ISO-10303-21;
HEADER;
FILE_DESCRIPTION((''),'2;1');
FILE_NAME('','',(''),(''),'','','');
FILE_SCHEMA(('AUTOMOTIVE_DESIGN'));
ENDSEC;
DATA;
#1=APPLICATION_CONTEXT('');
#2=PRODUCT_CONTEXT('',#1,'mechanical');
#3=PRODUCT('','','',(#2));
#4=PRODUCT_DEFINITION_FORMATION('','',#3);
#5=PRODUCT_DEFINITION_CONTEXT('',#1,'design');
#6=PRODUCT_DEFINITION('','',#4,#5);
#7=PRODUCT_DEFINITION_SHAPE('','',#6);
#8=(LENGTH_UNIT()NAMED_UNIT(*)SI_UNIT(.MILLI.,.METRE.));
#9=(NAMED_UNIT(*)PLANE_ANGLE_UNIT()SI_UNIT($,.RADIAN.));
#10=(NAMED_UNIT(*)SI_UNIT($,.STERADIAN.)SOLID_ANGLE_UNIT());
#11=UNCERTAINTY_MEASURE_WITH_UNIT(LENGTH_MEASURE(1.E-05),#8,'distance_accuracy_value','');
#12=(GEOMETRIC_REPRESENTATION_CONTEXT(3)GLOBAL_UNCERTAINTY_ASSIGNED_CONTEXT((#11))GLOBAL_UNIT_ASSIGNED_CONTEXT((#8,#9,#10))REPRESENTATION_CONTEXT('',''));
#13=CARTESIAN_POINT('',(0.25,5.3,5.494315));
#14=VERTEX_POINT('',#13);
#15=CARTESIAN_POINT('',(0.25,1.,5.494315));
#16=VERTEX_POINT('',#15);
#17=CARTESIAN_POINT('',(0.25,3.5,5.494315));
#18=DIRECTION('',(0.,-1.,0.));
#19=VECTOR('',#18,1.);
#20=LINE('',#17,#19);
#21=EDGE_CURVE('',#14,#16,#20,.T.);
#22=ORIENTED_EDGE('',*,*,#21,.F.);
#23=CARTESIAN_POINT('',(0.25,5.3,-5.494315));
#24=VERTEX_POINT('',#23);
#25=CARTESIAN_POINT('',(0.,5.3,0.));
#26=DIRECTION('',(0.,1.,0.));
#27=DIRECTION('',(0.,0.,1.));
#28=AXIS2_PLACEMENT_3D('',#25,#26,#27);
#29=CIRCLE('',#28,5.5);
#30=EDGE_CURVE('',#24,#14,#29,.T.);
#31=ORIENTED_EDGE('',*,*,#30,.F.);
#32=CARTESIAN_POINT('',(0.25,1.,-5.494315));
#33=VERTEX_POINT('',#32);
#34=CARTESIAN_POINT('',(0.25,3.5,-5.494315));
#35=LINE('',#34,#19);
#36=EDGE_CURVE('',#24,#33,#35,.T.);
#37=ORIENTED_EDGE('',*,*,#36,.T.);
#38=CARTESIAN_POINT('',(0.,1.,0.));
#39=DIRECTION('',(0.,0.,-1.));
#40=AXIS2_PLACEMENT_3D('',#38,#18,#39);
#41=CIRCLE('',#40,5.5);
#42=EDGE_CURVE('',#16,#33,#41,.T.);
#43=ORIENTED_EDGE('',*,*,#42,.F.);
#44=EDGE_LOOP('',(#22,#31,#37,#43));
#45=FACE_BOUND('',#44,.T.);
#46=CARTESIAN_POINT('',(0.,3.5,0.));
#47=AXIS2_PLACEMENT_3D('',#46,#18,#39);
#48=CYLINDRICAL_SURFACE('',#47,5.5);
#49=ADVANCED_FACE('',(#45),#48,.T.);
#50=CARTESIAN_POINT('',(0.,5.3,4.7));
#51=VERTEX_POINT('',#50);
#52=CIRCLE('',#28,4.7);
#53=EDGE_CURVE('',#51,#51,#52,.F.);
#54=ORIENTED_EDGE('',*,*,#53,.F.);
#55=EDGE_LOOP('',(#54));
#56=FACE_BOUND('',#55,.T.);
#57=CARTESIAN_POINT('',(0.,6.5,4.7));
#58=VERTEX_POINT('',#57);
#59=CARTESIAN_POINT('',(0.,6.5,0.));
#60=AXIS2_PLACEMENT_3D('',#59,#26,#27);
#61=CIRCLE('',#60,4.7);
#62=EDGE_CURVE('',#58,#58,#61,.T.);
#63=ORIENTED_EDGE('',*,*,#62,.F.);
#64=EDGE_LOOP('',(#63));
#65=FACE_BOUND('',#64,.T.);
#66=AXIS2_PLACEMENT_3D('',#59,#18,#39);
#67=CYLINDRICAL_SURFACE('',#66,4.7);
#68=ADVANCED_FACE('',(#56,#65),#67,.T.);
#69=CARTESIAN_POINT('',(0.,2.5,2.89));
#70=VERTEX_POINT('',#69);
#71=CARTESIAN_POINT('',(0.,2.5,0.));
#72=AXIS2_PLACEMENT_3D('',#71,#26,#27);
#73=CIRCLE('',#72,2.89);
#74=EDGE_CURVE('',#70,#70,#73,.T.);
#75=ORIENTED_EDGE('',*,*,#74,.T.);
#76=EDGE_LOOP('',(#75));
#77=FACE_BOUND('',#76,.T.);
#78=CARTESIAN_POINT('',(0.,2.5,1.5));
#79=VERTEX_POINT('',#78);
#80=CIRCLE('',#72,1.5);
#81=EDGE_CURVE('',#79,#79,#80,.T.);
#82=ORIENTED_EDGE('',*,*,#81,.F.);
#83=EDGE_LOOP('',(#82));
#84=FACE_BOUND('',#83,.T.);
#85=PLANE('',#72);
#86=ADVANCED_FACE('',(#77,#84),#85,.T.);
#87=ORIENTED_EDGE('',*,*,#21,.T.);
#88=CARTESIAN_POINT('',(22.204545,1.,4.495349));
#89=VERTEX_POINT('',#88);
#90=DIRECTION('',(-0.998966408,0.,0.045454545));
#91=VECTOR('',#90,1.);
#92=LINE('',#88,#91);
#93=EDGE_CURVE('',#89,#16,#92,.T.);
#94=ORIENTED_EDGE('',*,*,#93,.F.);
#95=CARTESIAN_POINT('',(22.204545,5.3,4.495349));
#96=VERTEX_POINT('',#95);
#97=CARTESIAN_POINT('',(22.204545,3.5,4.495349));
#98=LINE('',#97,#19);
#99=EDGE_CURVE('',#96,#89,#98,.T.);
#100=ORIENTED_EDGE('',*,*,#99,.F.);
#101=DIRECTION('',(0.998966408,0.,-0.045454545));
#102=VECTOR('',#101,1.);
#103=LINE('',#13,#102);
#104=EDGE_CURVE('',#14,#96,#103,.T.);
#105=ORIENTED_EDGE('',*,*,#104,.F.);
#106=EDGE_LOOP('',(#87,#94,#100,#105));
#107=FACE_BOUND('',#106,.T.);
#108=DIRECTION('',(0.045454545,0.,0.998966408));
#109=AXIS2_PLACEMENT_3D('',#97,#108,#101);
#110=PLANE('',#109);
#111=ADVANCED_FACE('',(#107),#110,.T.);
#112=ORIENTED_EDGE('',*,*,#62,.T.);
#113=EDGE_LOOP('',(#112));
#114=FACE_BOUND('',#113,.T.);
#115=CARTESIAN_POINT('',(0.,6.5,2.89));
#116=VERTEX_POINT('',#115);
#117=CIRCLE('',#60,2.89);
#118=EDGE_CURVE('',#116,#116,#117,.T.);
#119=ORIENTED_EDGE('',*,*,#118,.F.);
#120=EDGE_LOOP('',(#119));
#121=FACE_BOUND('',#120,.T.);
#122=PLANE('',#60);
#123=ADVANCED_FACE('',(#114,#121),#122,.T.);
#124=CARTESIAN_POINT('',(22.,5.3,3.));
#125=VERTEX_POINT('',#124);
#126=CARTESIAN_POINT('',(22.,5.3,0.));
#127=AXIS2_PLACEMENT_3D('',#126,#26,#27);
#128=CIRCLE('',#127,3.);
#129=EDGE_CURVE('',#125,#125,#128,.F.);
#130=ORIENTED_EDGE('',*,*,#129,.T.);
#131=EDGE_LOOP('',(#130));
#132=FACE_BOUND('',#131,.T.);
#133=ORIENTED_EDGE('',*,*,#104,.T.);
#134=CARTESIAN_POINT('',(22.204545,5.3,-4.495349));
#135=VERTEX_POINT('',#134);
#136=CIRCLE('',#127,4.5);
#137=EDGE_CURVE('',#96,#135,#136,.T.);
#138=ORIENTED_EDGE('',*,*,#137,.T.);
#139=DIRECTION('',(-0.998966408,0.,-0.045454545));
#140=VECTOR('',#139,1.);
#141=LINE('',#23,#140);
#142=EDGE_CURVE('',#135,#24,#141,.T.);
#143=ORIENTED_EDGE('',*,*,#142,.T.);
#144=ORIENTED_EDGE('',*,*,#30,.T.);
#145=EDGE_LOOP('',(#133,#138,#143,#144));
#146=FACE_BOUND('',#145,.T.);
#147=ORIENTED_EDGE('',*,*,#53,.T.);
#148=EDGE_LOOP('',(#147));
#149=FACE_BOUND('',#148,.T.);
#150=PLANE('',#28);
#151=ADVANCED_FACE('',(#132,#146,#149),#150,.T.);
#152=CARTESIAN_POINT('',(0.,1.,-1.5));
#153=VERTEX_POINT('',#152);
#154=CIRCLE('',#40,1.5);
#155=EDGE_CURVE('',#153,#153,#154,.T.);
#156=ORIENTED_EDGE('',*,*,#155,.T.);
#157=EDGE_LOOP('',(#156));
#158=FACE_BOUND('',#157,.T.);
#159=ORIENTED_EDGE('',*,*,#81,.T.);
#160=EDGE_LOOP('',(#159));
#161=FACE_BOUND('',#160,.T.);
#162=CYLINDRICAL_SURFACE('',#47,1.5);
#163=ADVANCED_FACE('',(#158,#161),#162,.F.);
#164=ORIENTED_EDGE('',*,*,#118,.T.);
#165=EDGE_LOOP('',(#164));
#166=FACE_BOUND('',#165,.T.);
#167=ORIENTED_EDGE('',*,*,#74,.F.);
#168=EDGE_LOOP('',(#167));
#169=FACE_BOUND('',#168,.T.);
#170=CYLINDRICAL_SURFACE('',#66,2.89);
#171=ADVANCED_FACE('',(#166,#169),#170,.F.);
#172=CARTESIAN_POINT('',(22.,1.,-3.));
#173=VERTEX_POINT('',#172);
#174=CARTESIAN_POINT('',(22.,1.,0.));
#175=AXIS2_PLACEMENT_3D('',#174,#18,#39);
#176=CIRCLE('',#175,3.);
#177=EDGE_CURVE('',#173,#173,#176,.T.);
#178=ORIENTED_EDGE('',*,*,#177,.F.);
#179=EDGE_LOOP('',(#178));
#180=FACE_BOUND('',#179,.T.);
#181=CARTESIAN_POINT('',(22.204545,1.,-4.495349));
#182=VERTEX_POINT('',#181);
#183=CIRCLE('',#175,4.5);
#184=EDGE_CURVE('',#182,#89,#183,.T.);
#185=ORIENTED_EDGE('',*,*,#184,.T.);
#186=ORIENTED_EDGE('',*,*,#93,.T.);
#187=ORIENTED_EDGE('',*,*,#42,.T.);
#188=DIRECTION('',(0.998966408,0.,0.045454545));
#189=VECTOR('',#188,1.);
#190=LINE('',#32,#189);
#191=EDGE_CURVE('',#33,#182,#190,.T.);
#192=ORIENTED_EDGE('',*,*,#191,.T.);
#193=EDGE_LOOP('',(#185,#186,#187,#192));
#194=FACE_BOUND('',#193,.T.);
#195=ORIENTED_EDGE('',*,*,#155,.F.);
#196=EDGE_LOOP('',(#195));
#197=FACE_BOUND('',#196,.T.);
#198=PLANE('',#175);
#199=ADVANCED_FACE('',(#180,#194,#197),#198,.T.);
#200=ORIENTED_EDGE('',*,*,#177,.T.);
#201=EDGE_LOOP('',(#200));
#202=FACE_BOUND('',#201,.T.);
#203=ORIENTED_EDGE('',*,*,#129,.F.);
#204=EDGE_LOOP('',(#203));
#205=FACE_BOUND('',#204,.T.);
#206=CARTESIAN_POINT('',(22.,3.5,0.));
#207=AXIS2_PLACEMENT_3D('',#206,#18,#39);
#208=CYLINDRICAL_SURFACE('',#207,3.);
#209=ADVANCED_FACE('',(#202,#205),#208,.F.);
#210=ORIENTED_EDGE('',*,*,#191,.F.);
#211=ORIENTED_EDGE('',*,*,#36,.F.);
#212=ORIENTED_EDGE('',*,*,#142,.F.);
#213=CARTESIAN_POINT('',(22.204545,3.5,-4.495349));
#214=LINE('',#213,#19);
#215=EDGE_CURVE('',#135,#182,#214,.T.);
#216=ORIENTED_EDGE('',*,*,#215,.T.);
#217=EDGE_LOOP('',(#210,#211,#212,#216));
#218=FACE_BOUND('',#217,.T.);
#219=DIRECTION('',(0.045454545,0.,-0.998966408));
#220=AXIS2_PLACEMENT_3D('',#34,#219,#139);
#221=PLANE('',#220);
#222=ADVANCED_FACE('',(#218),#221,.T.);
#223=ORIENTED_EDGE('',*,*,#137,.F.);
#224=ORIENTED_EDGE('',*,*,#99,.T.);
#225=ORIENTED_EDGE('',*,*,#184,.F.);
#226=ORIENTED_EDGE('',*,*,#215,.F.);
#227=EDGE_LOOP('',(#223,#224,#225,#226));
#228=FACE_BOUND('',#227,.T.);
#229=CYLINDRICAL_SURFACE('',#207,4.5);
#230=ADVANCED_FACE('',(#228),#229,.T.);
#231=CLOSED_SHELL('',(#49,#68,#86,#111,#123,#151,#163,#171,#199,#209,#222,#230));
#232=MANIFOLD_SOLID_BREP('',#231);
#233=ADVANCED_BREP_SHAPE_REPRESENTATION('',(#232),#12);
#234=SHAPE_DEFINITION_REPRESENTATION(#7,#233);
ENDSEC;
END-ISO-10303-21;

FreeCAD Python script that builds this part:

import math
import FreeCAD as App
import Part
import Sketcher
from FreeCAD import Vector

doc = App.newDocument("Part")
params = doc.addObject("Spreadsheet::Sheet", "Params")
for row, (alias, value) in enumerate([
    ("sketch1_diameter", "6 mm"),
    ("sketch1_diameter2", "3 mm"),
    ("sketch1_radius", "5.5 mm"),
    ("sketch1_radius2", "4.5 mm"),
    ("pad1_length", "3.5 mm"),
    ("sketch2_diameter", "9.4 mm"),
    ("sketch2_diameter2", "5.78 mm"),
    ("pad2_length", "3 mm"),
    ("sketch3_diameter", "5.78 mm"),
    ("pocket1_length", "1 mm"),
    ("sketch4_diameter", "6 mm"),
    ("sketch4_diameter2", "9.4 mm"),
    ("sketch4_radius", "4.5 mm"),
    ("sketch4_radius2", "5.5 mm"),
    ("pad3_length", "1.8 mm"),
    ("sketch5_radius", "5.5 mm"),
    ("sketch5_radius2", "4.5 mm"),
    ("pocket2_length", "1 mm"),
], start=1):
    params.set(f"A{row}", alias)
    params.set(f"B{row}", "=" + value)
    params.setAlias(f"B{row}", alias)

body = doc.addObject("PartDesign::Body", "Body")

sketch1 = body.newObject("Sketcher::SketchObject", "Sketch")
sketch1.AttachmentSupport = (doc.getObject("XZ_Plane"), [""])
sketch1.MapMode = "FlatFace"
sketch1.addGeometry(Part.LineSegment(Vector(22.2, -4.5, 0), Vector(0.2, -5.5, 0)), False)
sketch1.addGeometry(Part.ArcOfCircle(Part.Circle(Vector(0, 0, 0), Vector(0, 0, 1), 5.5), math.radians(87), math.radians(273)), False)
sketch1.addGeometry(Part.LineSegment(Vector(0.2, 5.5, 0), Vector(22.2, 4.5, 0)), False)
sketch1.addGeometry(Part.ArcOfCircle(Part.Circle(Vector(22, 0, 0), Vector(0, 0, 1), 4.5), math.radians(-87), math.radians(87)), False)
sketch1.addGeometry(Part.Circle(Vector(22, 0, 0), Vector(0, 0, 1), 3), False)
sketch1.addGeometry(Part.Circle(Vector(0, 0, 0), Vector(0, 0, 1), 1.5), False)
sketch1.addConstraint(Sketcher.Constraint("Tangent", 0, 2, 1, 2))
sketch1.addConstraint(Sketcher.Constraint("Tangent", 1, 1, 2, 1))
sketch1.addConstraint(Sketcher.Constraint("Tangent", 2, 2, 3, 2))
sketch1.addConstraint(Sketcher.Constraint("Tangent", 3, 1, 0, 1))
sketch1.addConstraint(Sketcher.Constraint("Coincident", 1, 3, -1, 1))
sketch1.addConstraint(Sketcher.Constraint("Coincident", 5, 3, -1, 1))
sketch1.addConstraint(Sketcher.Constraint("Coincident", 4, 3, 3, 3))
sketch1.addConstraint(Sketcher.Constraint("PointOnObject", 3, 3, -1))
sketch1.addConstraint(Sketcher.Constraint("Diameter", 4, 6.0))
sketch1.addConstraint(Sketcher.Constraint("Diameter", 5, 3.0))
sketch1.addConstraint(Sketcher.Constraint("Radius", 1, 5.5))
sketch1.addConstraint(Sketcher.Constraint("Radius", 3, 4.5))
sketch1.addConstraint(Sketcher.Constraint("DistanceX", -1, 1, 3, 3, 22.0))
sketch1.setExpression("Constraints[8]", "Params.sketch1_diameter")
sketch1.setExpression("Constraints[9]", "Params.sketch1_diameter2")
sketch1.setExpression("Constraints[10]", "Params.sketch1_radius")
sketch1.setExpression("Constraints[11]", "Params.sketch1_radius2")
pad1 = body.newObject("PartDesign::Pad", "Pad")
pad1.Profile = sketch1
pad1.setExpression("Length", "Params.pad1_length")
pad1.Reversed = True

sketch2 = body.newObject("Sketcher::SketchObject", "Sketch001")
sketch2.AttachmentSupport = (doc.getObject("XZ_Plane"), [""])
sketch2.MapMode = "FlatFace"
sketch2.AttachmentOffset = App.Placement(Vector(0, 0, -3.5), App.Rotation())
sketch2.addGeometry(Part.Circle(Vector(0, 0, 0), Vector(0, 0, 1), 4.7), False)
sketch2.addGeometry(Part.Circle(Vector(0, 0, 0), Vector(0, 0, 1), 2.9), False)
sketch2.addConstraint(Sketcher.Constraint("Coincident", 0, 3, -1, 1))
sketch2.addConstraint(Sketcher.Constraint("Coincident", 1, 3, -1, 1))
sketch2.addConstraint(Sketcher.Constraint("Diameter", 0, 9.4))
sketch2.addConstraint(Sketcher.Constraint("Diameter", 1, 5.78))
sketch2.setExpression("Constraints[2]", "Params.sketch2_diameter")
sketch2.setExpression("Constraints[3]", "Params.sketch2_diameter2")
pad2 = body.newObject("PartDesign::Pad", "Pad001")
pad2.Profile = sketch2
pad2.setExpression("Length", "Params.pad2_length")
pad2.Reversed = True

sketch3 = body.newObject("Sketcher::SketchObject", "Sketch002")
sketch3.AttachmentSupport = (doc.getObject("XZ_Plane"), [""])
sketch3.MapMode = "FlatFace"
sketch3.AttachmentOffset = App.Placement(Vector(0, 0, -2.5), App.Rotation())
sketch3.addGeometry(Part.Circle(Vector(0, 0, 0), Vector(0, 0, 1), 2.9), False)
sketch3.addConstraint(Sketcher.Constraint("Coincident", 0, 3, -1, 1))
sketch3.addConstraint(Sketcher.Constraint("Diameter", 0, 5.78))
sketch3.setExpression("Constraints[1]", "Params.sketch3_diameter")
pocket1 = body.newObject("PartDesign::Pocket", "Pocket")
pocket1.Profile = sketch3
pocket1.setExpression("Length", "Params.pocket1_length")

sketch4 = body.newObject("Sketcher::SketchObject", "Sketch003")
sketch4.AttachmentSupport = (doc.getObject("XZ_Plane"), [""])
sketch4.MapMode = "FlatFace"
sketch4.AttachmentOffset = App.Placement(Vector(0, 0, -3.5), App.Rotation())
sketch4.addGeometry(Part.LineSegment(Vector(0.2, 5.5, 0), Vector(22.2, 4.5, 0)), False)
sketch4.addGeometry(Part.ArcOfCircle(Part.Circle(Vector(22, 0, 0), Vector(0, 0, 1), 4.5), math.radians(-87), math.radians(87)), False)
sketch4.addGeometry(Part.LineSegment(Vector(22.2, -4.5, 0), Vector(0.2, -5.5, 0)), False)
sketch4.addGeometry(Part.ArcOfCircle(Part.Circle(Vector(0, 0, 0), Vector(0, 0, 1), 5.5), math.radians(87), math.radians(273)), False)
sketch4.addGeometry(Part.Circle(Vector(0, 0, 0), Vector(0, 0, 1), 4.7), False)
sketch4.addGeometry(Part.Circle(Vector(22, 0, 0), Vector(0, 0, 1), 3), False)
sketch4.addConstraint(Sketcher.Constraint("Tangent", 0, 2, 1, 2))
sketch4.addConstraint(Sketcher.Constraint("Tangent", 1, 1, 2, 1))
sketch4.addConstraint(Sketcher.Constraint("Tangent", 2, 2, 3, 2))
sketch4.addConstraint(Sketcher.Constraint("Tangent", 3, 1, 0, 1))
sketch4.addConstraint(Sketcher.Constraint("Coincident", 3, 3, -1, 1))
sketch4.addConstraint(Sketcher.Constraint("Coincident", 4, 3, -1, 1))
sketch4.addConstraint(Sketcher.Constraint("Coincident", 5, 3, 1, 3))
sketch4.addConstraint(Sketcher.Constraint("PointOnObject", 1, 3, -1))
sketch4.addConstraint(Sketcher.Constraint("Diameter", 5, 6.0))
sketch4.addConstraint(Sketcher.Constraint("Diameter", 4, 9.4))
sketch4.addConstraint(Sketcher.Constraint("Radius", 1, 4.5))
sketch4.addConstraint(Sketcher.Constraint("Radius", 3, 5.5))
sketch4.addConstraint(Sketcher.Constraint("DistanceX", -1, 1, 1, 3, 22.0))
sketch4.setExpression("Constraints[8]", "Params.sketch4_diameter")
sketch4.setExpression("Constraints[9]", "Params.sketch4_diameter2")
sketch4.setExpression("Constraints[10]", "Params.sketch4_radius")
sketch4.setExpression("Constraints[11]", "Params.sketch4_radius2")
pad3 = body.newObject("PartDesign::Pad", "Pad002")
pad3.Profile = sketch4
pad3.setExpression("Length", "Params.pad3_length")
pad3.Reversed = True

sketch5 = body.newObject("Sketcher::SketchObject", "Sketch004")
sketch5.AttachmentSupport = (doc.getObject("XZ_Plane"), [""])
sketch5.MapMode = "FlatFace"
sketch5.addGeometry(Part.LineSegment(Vector(22.2, 4.5, 0), Vector(0.2, 5.5, 0)), False)
sketch5.addGeometry(Part.ArcOfCircle(Part.Circle(Vector(0, 0, 0), Vector(0, 0, 1), 5.5), math.radians(87), math.radians(273)), False)
sketch5.addGeometry(Part.LineSegment(Vector(0.2, -5.5, 0), Vector(22.2, -4.5, 0)), False)
sketch5.addGeometry(Part.ArcOfCircle(Part.Circle(Vector(22, 0, 0), Vector(0, 0, 1), 4.5), math.radians(-87), math.radians(87)), False)
sketch5.addConstraint(Sketcher.Constraint("Tangent", 0, 2, 1, 1))
sketch5.addConstraint(Sketcher.Constraint("Tangent", 1, 2, 2, 1))
sketch5.addConstraint(Sketcher.Constraint("Tangent", 2, 2, 3, 1))
sketch5.addConstraint(Sketcher.Constraint("Tangent", 3, 2, 0, 1))
sketch5.addConstraint(Sketcher.Constraint("Coincident", 1, 3, -1, 1))
sketch5.addConstraint(Sketcher.Constraint("PointOnObject", 3, 3, -1))
sketch5.addConstraint(Sketcher.Constraint("Radius", 1, 5.5))
sketch5.addConstraint(Sketcher.Constraint("Radius", 3, 4.5))
sketch5.addConstraint(Sketcher.Constraint("DistanceX", -1, 1, 3, 3, 22.0))
sketch5.setExpression("Constraints[6]", "Params.sketch5_radius")
sketch5.setExpression("Constraints[7]", "Params.sketch5_radius2")
pocket2 = body.newObject("PartDesign::Pocket", "Pocket001")
pocket2.Profile = sketch5
pocket2.setExpression("Length", "Params.pocket2_length")

doc.recompute()
